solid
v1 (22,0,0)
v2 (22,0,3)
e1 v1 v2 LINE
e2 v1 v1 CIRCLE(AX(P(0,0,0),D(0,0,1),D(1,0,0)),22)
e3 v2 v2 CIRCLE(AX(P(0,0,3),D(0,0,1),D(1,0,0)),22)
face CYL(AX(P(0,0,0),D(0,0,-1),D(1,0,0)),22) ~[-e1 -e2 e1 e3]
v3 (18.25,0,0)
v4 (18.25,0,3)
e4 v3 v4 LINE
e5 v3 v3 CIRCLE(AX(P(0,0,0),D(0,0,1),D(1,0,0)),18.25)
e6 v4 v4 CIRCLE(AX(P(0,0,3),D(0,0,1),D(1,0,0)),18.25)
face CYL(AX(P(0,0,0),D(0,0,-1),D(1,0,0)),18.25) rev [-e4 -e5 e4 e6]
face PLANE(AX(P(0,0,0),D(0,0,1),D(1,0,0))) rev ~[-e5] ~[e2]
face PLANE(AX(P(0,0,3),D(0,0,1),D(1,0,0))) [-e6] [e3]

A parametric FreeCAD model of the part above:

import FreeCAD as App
import Part
import Sketcher
Q = App.Units.Quantity

doc = App.newDocument("Part")
body = doc.addObject("PartDesign::Body", "Body")

sketch1 = body.newObject("Sketcher::SketchObject", "Sketch")
sketch1.AttachmentSupport = (doc.getObject("XY_Plane"), [""])
sketch1.MapMode = "FlatFace"
sketch1.addGeometry([
    Part.Circle(App.Vector(0, 0, 0), App.Vector(0, 0, 1), 22),
    Part.Circle(App.Vector(0, 0, 0), App.Vector(0, 0, 1), 18),
], False)
sketch1.addConstraint([
    Sketcher.Constraint("Coincident", 0, 3, -1, 1),
    Sketcher.Constraint("Coincident", 1, 3, -1, 1),
    Sketcher.Constraint("Diameter", 0, Q("44 mm")),
    Sketcher.Constraint("Diameter", 1, Q("36.5 mm")),
])
pad1 = body.newObject("PartDesign::Pad", "Pad")
pad1.Profile = sketch1
pad1.Length = 3

doc.recompute()
